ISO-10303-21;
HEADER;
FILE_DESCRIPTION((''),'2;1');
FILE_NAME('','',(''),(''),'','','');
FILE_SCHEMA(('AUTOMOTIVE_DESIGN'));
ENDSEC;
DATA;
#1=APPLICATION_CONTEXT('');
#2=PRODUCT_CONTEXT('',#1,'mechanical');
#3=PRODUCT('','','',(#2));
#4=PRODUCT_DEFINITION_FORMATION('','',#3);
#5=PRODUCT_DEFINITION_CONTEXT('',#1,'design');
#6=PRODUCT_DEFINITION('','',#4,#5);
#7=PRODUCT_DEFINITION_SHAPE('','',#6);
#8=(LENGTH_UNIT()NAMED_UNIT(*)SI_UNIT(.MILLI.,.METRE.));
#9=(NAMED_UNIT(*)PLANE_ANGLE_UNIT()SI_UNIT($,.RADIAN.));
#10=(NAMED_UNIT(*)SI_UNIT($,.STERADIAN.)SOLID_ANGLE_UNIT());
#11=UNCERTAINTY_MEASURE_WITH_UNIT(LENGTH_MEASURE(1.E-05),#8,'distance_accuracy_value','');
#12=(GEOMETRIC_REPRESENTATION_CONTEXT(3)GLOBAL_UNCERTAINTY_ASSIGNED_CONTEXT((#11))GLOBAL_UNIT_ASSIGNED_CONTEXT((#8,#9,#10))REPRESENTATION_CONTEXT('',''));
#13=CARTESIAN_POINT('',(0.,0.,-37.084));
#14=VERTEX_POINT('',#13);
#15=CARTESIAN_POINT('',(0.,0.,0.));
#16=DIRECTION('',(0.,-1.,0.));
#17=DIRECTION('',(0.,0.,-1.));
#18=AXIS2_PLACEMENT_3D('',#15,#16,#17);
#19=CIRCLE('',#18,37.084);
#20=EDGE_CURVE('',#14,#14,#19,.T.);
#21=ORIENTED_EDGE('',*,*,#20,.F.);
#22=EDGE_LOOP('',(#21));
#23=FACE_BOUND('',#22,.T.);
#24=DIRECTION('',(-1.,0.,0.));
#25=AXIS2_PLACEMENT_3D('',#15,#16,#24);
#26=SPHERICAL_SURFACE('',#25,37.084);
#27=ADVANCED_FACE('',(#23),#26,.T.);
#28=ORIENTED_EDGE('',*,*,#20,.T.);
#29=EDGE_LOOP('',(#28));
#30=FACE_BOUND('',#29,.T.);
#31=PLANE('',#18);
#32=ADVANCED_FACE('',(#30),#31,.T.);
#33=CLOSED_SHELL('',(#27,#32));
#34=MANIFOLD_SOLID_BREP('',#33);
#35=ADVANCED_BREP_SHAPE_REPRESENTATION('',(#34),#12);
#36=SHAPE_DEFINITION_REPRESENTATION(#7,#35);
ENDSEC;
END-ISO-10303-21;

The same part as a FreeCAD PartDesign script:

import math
import FreeCAD as App
import Part
import Sketcher
Q = App.Units.Quantity

doc = App.newDocument("Part")
body = doc.addObject("PartDesign::Body", "Body")

# Sketch on XY plane
sketch1 = body.newObject("Sketcher::SketchObject", "Sketch")
sketch1.AttachmentSupport = (doc.getObject("XY_Plane"), [""])
sketch1.MapMode = "FlatFace"
sketch1.addGeometry([
    Part.LineSegment(App.Vector(0, 0, 0), App.Vector(0, 37, 0)),
    Part.ArcOfCircle(Part.Circle(App.Vector(0, 0, 0), App.Vector(0, 0, 1), 37), math.radians(90), math.radians(180)),
    Part.LineSegment(App.Vector(-37, 0, 0), App.Vector(0, 0, 0)),
], False)
sketch1.addConstraint([
    Sketcher.Constraint("Coincident", 0, 2, 1, 1),
    Sketcher.Constraint("Coincident", 1, 2, 2, 1),
    Sketcher.Constraint("Coincident", 2, 2, 0, 1),
    Sketcher.Constraint("Vertical", 0),
    Sketcher.Constraint("Horizontal", 2),
    Sketcher.Constraint("Coincident", 1, 3, -1, 1),
    Sketcher.Constraint("Coincident", 2, 2, -1, 1),
    Sketcher.Constraint("Radius", 1, Q("1.46 in")),
])
revolution = body.newObject("PartDesign::Revolution", "Revolution")
revolution.Profile = sketch1
revolution.ReferenceAxis = (sketch1, ["V_Axis"])
revolution.Angle = 360

doc.recompute()
